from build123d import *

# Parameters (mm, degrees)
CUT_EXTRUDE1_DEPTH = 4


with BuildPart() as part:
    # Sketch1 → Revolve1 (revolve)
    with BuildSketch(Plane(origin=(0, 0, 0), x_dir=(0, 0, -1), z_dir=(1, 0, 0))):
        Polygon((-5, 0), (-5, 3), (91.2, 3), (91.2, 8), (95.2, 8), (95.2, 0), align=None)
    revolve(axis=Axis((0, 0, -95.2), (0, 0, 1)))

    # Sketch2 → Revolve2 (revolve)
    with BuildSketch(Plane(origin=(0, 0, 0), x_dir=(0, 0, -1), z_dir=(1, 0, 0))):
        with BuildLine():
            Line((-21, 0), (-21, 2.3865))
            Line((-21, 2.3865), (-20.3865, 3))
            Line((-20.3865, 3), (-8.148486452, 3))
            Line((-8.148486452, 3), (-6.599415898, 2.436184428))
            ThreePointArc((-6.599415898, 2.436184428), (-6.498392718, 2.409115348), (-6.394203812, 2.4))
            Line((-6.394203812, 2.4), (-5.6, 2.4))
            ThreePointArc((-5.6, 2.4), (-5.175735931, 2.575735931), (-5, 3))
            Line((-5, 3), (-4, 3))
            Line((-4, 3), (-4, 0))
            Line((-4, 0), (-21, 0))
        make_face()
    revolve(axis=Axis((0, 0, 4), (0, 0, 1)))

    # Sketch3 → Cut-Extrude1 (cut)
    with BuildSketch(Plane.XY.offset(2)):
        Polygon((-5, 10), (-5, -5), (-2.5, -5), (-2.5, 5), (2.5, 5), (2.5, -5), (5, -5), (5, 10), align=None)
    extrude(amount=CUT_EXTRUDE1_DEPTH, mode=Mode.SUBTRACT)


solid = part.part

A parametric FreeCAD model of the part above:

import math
import FreeCAD as App
import Part
import Sketcher
Q = App.Units.Quantity

doc = App.newDocument("Part")
body = doc.addObject("PartDesign::Body", "Body")

sketch1 = body.newObject("Sketcher::SketchObject", "Sketch")
sketch1.AttachmentSupport = (doc.getObject("YZ_Plane"), [""])
sketch1.MapMode = "FlatFace"
sketch1.addGeometry([
    Part.LineSegment(App.Vector(3, 5, 0), App.Vector(0, 5, 0)),
    Part.LineSegment(App.Vector(0, 5, 0), App.Vector(0, -95.2, 0)),
    Part.LineSegment(App.Vector(0, -95.2, 0), App.Vector(8, -95.2, 0)),
    Part.LineSegment(App.Vector(8, -95.2, 0), App.Vector(8, -91.2, 0)),
    Part.LineSegment(App.Vector(8, -91.2, 0), App.Vector(3, -91.2, 0)),
    Part.LineSegment(App.Vector(3, -91.2, 0), App.Vector(3, 5, 0)),
], False)
sketch1.addConstraint([
    Sketcher.Constraint("Coincident", 0, 2, 1, 1),
    Sketcher.Constraint("Coincident", 1, 2, 2, 1),
    Sketcher.Constraint("Coincident", 2, 2, 3, 1),
    Sketcher.Constraint("Coincident", 3, 2, 4, 1),
    Sketcher.Constraint("Coincident", 4, 2, 5, 1),
    Sketcher.Constraint("Coincident", 5, 2, 0, 1),
    Sketcher.Constraint("Horizontal", 0),
    Sketcher.Constraint("Vertical", 1),
    Sketcher.Constraint("Horizontal", 2),
    Sketcher.Constraint("Vertical", 3),
    Sketcher.Constraint("Horizontal", 4),
    Sketcher.Constraint("Vertical", 5),
    Sketcher.Constraint("PointOnObject", 0, 2, -2),
    Sketcher.Constraint("DistanceX", 0, 2, 0, 1, Q("3 mm")),
    Sketcher.Constraint("DistanceX", 2, 1, 2, 2, Q("8 mm")),
    Sketcher.Constraint("DistanceY", 3, 1, 3, 2, Q("4 mm")),
    Sketcher.Constraint("DistanceY", 1, 2, 1, 1, Q("100.2 mm")),
    Sketcher.Constraint("DistanceY", -1, 1, 0, 2, Q("5 mm")),
])
revolution = body.newObject("PartDesign::Revolution", "Revolution")
revolution.Profile = sketch1
revolution.ReferenceAxis = (sketch1, ["V_Axis"])
revolution.Angle = 360

sketch2 = body.newObject("Sketcher::SketchObject", "Sketch001")
sketch2.AttachmentSupport = (doc.getObject("YZ_Plane"), [""])
sketch2.MapMode = "FlatFace"
sketch2.addGeometry([
    Part.LineSegment(App.Vector(2.39, 21, 0), App.Vector(0, 21, 0)),
    Part.LineSegment(App.Vector(0, 21, 0), App.Vector(0, 4, 0)),
    Part.LineSegment(App.Vector(0, 4, 0), App.Vector(3, 4, 0)),
    Part.LineSegment(App.Vector(3, 4, 0), App.Vector(3, 5, 0)),
    Part.ArcOfCircle(Part.Circle(App.Vector(3, 5.6, 0), App.Vector(0, 0, 1), 0.6), math.radians(180), math.radians(270)),
    Part.LineSegment(App.Vector(2.4, 5.6, 0), App.Vector(2.4, 6.39, 0)),
    Part.ArcOfCircle(Part.Circle(App.Vector(3, 6.39, 0), App.Vector(0, 0, 1), 0.6), math.radians(160), math.radians(180)),
    Part.LineSegment(App.Vector(2.44, 6.6, 0), App.Vector(3, 8.15, 0)),
    Part.LineSegment(App.Vector(3, 8.15, 0), App.Vector(3, 20.39, 0)),
    Part.LineSegment(App.Vector(3, 20.39, 0), App.Vector(2.39, 21, 0)),
], False)
sketch2.addConstraint([
    Sketcher.Constraint("Coincident", 0, 2, 1, 1),
    Sketcher.Constraint("Coincident", 1, 2, 2, 1),
    Sketcher.Constraint("Coincident", 2, 2, 3, 1),
    Sketcher.Constraint("Coincident", 3, 2, 4, 2),
    Sketcher.Constraint("Tangent", 4, 1, 5, 1),
    Sketcher.Constraint("Tangent", 5, 2, 6, 2),
    Sketcher.Constraint("Tangent", 6, 1, 7, 1),
    Sketcher.Constraint("Coincident", 7, 2, 8, 1),
    Sketcher.Constraint("Coincident", 8, 2, 9, 1),
    Sketcher.Constraint("Coincident", 9, 2, 0, 1),
    Sketcher.Constraint("Horizontal", 0),
    Sketcher.Constraint("Vertical", 1),
    Sketcher.Constraint("Horizontal", 2),
    Sketcher.Constraint("Vertical", 3),
    Sketcher.Constraint("Vertical", 5),
    Sketcher.Constraint("Vertical", 8),
    Sketcher.Constraint("Equal", 4, 6),
    Sketcher.Constraint("PointOnObject", 0, 2, -2),
    Sketcher.Constraint("Vertical", 6, 3, 2, 2),
    Sketcher.Constraint("Vertical", 3, 2, 7, 2),
    Sketcher.Constraint("Radius", 4, Q("0.6 mm")),
    Sketcher.Constraint("DistanceX", 2, 1, 2, 2, Q("3 mm")),
    Sketcher.Constraint("DistanceY", 1, 2, 1, 1, Q("17 mm")),
    Sketcher.Constraint("DistanceY", 3, 1, 3, 2, Q("1 mm")),
    Sketcher.Constraint("Angle", 7, Q("70 deg")),
    Sketcher.Constraint("Angle", 9, Q("135 deg")),
    Sketcher.Constraint("DistanceY", -1, 1, 0, 2, Q("21 mm")),
    Sketcher.Constraint("DistanceX", 0, 2, 0, 1, Q("2.3865 mm")),
    Sketcher.Constraint("DistanceY", 5, 1, 5, 2, Q("0.794204 mm")),
])
revolution2 = body.newObject("PartDesign::Revolution", "Revolution001")
revolution2.Profile = sketch2
revolution2.ReferenceAxis = (sketch2, ["V_Axis"])
revolution2.Angle = 360

sketch3 = body.newObject("Sketcher::SketchObject", "Sketch002")
sketch3.AttachmentSupport = (doc.getObject("XY_Plane"), [""])
sketch3.MapMode = "FlatFace"
sketch3.AttachmentOffset = App.Placement(App.Vector(0, 0, 2), App.Rotation())
sketch3.addGeometry([
    Part.LineSegment(App.Vector(-5, 10, 0), App.Vector(-5, -5, 0)),
    Part.LineSegment(App.Vector(-5, -5, 0), App.Vector(-2.5, -5, 0)),
    Part.LineSegment(App.Vector(-2.5, -5, 0), App.Vector(-2.5, 5, 0)),
    Part.LineSegment(App.Vector(-2.5, 5, 0), App.Vector(2.5, 5, 0)),
    Part.LineSegment(App.Vector(2.5, 5, 0), App.Vector(2.5, -5, 0)),
    Part.LineSegment(App.Vector(2.5, -5, 0), App.Vector(5, -5, 0)),
    Part.LineSegment(App.Vector(5, -5, 0), App.Vector(5, 10, 0)),
    Part.LineSegment(App.Vector(5, 10, 0), App.Vector(-5, 10, 0)),
], False)
sketch3.addConstraint([
    Sketcher.Constraint("Coincident", 0, 2, 1, 1),
    Sketcher.Constraint("Coincident", 1, 2, 2, 1),
    Sketcher.Constraint("Coincident", 2, 2, 3, 1),
    Sketcher.Constraint("Coincident", 3, 2, 4, 1),
    Sketcher.Constraint("Coincident", 4, 2, 5, 1),
    Sketcher.Constraint("Coincident", 5, 2, 6, 1),
    Sketcher.Constraint("Coincident", 6, 2, 7, 1),
    Sketcher.Constraint("Coincident", 7, 2, 0, 1),
    Sketcher.Constraint("Vertical", 0),
    Sketcher.Constraint("Horizontal", 1),
    Sketcher.Constraint("Vertical", 2),
    Sketcher.Constraint("Horizontal", 3),
    Sketcher.Constraint("Vertical", 4),
    Sketcher.Constraint("Horizontal", 5),
    Sketcher.Constraint("Vertical", 6),
    Sketcher.Constraint("Horizontal", 7),
    Sketcher.Constraint("Symmetric", 1, 2, 3, 2, -1, 1),
    Sketcher.Constraint("Symmetric", 0, 2, 5, 2, -2),
    Sketcher.Constraint("Equal", 7, 2),
    Sketcher.Constraint("DistanceX", 3, 1, 3, 2, Q("5 mm")),
    Sketcher.Constraint("DistanceX", 7, 2, 7, 1, Q("10 mm")),
    Sketcher.Constraint("DistanceY", 0, 2, 0, 1, Q("15 mm")),
])
pocket1 = body.newObject("PartDesign::Pocket", "Pocket")
pocket1.Profile = sketch3
pocket1.Length = 4
pocket1.Reversed = True

doc.recompute()
